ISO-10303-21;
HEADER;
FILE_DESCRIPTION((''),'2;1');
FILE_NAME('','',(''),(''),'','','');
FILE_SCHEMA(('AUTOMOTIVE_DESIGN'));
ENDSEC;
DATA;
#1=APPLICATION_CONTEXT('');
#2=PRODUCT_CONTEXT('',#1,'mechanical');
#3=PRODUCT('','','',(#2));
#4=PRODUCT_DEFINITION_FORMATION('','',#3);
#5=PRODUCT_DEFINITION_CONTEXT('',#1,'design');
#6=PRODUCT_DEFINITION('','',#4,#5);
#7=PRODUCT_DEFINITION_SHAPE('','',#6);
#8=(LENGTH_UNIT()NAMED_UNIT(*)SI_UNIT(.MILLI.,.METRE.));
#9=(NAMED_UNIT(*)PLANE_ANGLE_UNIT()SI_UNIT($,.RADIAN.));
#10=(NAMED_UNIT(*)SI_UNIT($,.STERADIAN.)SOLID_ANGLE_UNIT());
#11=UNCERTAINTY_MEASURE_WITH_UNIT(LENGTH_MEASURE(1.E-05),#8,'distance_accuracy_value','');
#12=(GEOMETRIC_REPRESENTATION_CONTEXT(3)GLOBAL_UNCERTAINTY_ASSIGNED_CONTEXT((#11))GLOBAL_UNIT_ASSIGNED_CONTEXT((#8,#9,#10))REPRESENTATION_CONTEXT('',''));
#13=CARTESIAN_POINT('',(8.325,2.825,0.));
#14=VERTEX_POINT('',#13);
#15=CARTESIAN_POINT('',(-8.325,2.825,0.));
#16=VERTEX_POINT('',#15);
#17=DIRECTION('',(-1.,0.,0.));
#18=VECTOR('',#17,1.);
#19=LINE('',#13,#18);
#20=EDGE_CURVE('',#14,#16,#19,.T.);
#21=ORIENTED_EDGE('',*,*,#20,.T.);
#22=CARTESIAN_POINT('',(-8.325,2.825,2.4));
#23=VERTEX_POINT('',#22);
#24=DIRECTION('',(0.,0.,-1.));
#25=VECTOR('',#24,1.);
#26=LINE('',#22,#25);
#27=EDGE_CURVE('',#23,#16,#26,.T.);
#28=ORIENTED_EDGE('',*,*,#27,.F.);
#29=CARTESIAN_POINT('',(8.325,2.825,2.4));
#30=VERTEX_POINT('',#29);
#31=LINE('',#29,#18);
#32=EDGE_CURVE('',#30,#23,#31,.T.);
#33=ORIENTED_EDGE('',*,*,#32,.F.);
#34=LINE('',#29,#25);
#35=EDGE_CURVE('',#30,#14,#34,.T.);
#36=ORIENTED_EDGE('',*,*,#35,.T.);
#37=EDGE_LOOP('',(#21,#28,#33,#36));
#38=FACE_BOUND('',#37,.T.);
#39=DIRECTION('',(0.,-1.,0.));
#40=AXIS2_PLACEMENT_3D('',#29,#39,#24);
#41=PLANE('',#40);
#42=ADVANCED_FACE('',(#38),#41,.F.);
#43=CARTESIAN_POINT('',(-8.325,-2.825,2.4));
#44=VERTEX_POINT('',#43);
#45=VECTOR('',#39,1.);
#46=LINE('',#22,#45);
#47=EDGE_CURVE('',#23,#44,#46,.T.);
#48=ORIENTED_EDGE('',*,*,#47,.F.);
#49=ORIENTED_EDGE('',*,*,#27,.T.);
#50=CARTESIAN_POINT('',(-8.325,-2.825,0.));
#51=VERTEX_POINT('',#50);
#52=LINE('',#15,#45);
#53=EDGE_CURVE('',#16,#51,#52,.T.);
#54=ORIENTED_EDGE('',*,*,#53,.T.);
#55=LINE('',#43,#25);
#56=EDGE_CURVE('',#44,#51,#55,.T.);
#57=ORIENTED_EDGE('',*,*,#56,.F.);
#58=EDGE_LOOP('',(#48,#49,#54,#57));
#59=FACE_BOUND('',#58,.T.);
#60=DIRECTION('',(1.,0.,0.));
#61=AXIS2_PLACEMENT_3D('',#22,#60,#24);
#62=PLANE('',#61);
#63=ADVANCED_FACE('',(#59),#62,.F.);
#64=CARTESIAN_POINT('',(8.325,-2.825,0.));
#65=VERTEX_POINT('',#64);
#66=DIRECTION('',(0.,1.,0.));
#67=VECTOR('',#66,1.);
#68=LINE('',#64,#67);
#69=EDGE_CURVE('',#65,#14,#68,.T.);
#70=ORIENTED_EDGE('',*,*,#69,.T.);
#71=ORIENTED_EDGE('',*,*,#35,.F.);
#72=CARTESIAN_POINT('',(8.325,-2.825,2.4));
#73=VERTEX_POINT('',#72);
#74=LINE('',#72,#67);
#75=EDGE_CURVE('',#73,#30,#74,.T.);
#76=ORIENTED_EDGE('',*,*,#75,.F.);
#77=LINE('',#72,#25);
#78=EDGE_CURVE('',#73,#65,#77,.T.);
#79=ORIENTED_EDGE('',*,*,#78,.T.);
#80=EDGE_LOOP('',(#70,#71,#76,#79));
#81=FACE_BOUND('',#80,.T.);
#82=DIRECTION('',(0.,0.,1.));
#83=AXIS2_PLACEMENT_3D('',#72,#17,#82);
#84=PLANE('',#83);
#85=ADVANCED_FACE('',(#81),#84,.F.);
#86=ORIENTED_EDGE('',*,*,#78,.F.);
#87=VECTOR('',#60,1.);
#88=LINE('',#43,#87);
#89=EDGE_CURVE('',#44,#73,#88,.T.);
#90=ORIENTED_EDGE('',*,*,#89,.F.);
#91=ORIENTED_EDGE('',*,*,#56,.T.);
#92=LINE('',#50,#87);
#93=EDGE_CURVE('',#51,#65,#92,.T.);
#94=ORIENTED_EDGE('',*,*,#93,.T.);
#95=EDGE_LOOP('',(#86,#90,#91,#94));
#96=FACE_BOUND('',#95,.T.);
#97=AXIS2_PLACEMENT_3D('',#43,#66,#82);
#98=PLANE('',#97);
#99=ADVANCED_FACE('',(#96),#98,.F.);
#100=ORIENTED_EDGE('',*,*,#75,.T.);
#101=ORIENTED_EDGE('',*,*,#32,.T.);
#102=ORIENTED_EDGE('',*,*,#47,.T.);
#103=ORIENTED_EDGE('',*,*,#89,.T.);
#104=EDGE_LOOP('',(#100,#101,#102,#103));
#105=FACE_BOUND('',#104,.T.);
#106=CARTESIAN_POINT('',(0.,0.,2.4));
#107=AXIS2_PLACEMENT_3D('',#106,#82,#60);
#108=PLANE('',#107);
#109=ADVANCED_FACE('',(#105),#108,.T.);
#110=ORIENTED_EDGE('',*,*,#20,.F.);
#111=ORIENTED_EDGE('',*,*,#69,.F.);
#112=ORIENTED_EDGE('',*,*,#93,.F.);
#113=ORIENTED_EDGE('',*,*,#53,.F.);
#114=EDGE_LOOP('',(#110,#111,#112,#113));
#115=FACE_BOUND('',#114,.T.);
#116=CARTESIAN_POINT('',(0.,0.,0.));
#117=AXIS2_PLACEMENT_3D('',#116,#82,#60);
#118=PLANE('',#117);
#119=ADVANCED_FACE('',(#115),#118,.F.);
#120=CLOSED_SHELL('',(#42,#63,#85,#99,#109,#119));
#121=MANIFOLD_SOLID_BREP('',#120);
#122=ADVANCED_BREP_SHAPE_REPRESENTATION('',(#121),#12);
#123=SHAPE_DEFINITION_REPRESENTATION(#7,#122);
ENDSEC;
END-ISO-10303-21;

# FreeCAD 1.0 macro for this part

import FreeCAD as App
import Part
import Sketcher


def add_polygon(sketch, points):
    """Adds a closed chain of lines whose ends are joined by coincident constraints."""
    first, n = sketch.GeometryCount, len(points)
    for a, b in zip(points, points[1:] + points[:1]):
        sketch.addGeometry(Part.LineSegment(App.Vector(*a, 0), App.Vector(*b, 0)), False)
    for i in range(n):
        sketch.addConstraint(Sketcher.Constraint("Coincident", first + i, 2, first + (i + 1) % n, 1))

doc = App.newDocument("Part")
params = doc.addObject("Spreadsheet::Sheet", "Params")
for row, (alias, value) in enumerate([
    ("sketch1_width", "16.65 mm"),
    ("sketch1_height", "5.65 mm"),
    ("pad1_length", "2.4 mm"),
], start=1):
    params.set(f"A{row}", alias)
    params.set(f"B{row}", "=" + value)
    params.setAlias(f"B{row}", alias)

body = doc.addObject("PartDesign::Body", "Body")

# Sketch on XY plane
sketch1 = doc.addObject("Sketcher::SketchObject", "Sketch")
body.addObject(sketch1)
sketch1.AttachmentSupport = (doc.XY_Plane, [""])
sketch1.MapMode = "FlatFace"
add_polygon(sketch1, [(-8, 3), (-8, -3), (8, -3), (8, 3)])  # lines 0-3
sketch1.addConstraint([
    Sketcher.Constraint("Vertical", 0),
    Sketcher.Constraint("Horizontal", 1),
    Sketcher.Constraint("Vertical", 2),
    Sketcher.Constraint("Horizontal", 3),
    Sketcher.Constraint("Symmetric", 0, 2, 2, 2, -1, 1),
    Sketcher.Constraint("DistanceX", 1, 1, 1, 2, 16.65),
    Sketcher.Constraint("DistanceY", 0, 2, 0, 1, 5.65),
])
sketch1.setExpression("Constraints[9]", "Params.sketch1_width")
sketch1.setExpression("Constraints[10]", "Params.sketch1_height")
pad1 = doc.addObject("PartDesign::Pad", "Pad")
body.addObject(pad1)
pad1.Profile = sketch1
pad1.setExpression("Length", "Params.pad1_length")

doc.recompute()
